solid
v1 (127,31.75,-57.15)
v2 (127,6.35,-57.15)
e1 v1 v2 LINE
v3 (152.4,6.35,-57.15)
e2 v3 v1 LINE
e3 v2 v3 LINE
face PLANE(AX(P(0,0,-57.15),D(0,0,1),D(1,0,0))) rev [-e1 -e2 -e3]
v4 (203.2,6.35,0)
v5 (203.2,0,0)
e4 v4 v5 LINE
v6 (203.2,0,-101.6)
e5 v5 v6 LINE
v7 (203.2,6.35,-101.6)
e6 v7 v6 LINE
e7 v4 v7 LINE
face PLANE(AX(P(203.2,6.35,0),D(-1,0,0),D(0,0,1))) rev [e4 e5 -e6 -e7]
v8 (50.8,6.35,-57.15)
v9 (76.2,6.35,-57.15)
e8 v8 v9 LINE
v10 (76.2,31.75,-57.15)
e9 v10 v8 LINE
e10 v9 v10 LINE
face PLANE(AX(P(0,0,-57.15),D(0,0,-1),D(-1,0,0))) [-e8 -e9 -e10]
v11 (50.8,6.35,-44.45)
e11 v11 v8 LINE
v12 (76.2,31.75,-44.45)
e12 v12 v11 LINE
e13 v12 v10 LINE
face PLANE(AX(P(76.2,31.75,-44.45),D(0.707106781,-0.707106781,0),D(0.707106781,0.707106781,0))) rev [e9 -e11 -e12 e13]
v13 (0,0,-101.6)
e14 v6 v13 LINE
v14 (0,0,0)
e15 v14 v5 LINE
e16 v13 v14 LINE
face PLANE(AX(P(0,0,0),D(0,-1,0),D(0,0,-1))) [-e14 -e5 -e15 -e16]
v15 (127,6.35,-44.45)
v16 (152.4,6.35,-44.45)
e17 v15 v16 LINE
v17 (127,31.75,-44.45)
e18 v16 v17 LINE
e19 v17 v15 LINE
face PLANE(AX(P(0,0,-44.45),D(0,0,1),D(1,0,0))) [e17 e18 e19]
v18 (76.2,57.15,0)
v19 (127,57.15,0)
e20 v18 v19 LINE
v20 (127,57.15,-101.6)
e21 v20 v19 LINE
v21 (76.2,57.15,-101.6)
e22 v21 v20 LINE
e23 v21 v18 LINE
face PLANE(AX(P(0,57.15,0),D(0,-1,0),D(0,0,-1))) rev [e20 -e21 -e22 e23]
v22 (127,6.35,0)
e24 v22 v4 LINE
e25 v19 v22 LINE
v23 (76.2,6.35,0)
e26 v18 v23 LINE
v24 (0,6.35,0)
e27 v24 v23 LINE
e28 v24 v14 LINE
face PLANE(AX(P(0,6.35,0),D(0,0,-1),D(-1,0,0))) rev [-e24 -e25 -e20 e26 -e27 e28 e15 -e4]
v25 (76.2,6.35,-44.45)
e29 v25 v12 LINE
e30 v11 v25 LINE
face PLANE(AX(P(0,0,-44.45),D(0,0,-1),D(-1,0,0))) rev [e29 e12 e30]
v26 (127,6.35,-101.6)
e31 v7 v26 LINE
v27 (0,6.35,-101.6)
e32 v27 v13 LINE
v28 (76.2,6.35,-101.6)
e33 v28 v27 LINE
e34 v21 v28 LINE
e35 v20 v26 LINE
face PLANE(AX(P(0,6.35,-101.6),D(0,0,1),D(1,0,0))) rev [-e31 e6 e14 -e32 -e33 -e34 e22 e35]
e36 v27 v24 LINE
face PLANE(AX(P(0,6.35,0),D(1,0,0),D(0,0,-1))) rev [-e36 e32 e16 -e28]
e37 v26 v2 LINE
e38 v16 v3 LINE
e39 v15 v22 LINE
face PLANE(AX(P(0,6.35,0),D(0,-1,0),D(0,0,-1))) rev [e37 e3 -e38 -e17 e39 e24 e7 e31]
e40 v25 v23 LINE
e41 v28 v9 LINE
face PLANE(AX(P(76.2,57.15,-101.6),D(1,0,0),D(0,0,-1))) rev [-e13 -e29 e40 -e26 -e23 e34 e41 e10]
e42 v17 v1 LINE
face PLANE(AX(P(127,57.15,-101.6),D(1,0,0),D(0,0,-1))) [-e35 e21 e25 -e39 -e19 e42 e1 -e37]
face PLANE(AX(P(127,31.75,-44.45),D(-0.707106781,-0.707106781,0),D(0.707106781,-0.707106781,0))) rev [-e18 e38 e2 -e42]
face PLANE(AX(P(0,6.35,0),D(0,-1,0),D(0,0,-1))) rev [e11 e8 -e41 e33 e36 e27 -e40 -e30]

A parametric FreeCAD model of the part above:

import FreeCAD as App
import Part
import Sketcher

V = App.Vector
Q = App.Units.Quantity

doc = App.newDocument("Part")
params = doc.addObject("Spreadsheet::Sheet", "Params")
for row, (alias, value) in enumerate([
    ("sketch1_width", "8 in"),
    ("sketch1_height", "4 in"),
    ("pad1_length", "0.25 in"),
    ("sketch2_width", "2 in"),
    ("sketch2_height", "4 in"),
    ("pad2_length", "2 in"),
    ("sketch3_width", "1 in"),
    ("pad3_length", "0.5 in"),
], start=1):
    params.set(f"A{row}", alias)
    params.set(f"B{row}", "=" + value)
    params.setAlias(f"B{row}", alias)

body = doc.addObject("PartDesign::Body", "Body")

sketch1 = body.newObject("Sketcher::SketchObject", "Sketch")
sketch1.AttachmentSupport = (doc.getObject("XZ_Plane"), [""])
sketch1.MapMode = "FlatFace"
sketch1.addGeometry(Part.LineSegment(V(0, -101.6, 0), V(0, 0, 0)), False)
sketch1.addGeometry(Part.LineSegment(V(0, 0, 0), V(203.2, 0, 0)), False)
sketch1.addGeometry(Part.LineSegment(V(203.2, 0, 0), V(203.2, -101.6, 0)), False)
sketch1.addGeometry(Part.LineSegment(V(203.2, -101.6, 0), V(0, -101.6, 0)), False)
sketch1.addConstraint(Sketcher.Constraint("Coincident", 0, 2, 1, 1))
sketch1.addConstraint(Sketcher.Constraint("Coincident", 1, 2, 2, 1))
sketch1.addConstraint(Sketcher.Constraint("Coincident", 2, 2, 3, 1))
sketch1.addConstraint(Sketcher.Constraint("Coincident", 3, 2, 0, 1))
sketch1.addConstraint(Sketcher.Constraint("Vertical", 0))
sketch1.addConstraint(Sketcher.Constraint("Horizontal", 1))
sketch1.addConstraint(Sketcher.Constraint("Vertical", 2))
sketch1.addConstraint(Sketcher.Constraint("Horizontal", 3))
sketch1.addConstraint(Sketcher.Constraint("Coincident", 0, 2, -1, 1))
sketch1.addConstraint(Sketcher.Constraint("DistanceX", 1, 1, 1, 2, Q("8 in")))
sketch1.addConstraint(Sketcher.Constraint("DistanceY", 0, 1, 0, 2, Q("4 in")))
sketch1.setExpression("Constraints[9]", "Params.sketch1_width")
sketch1.setExpression("Constraints[10]", "Params.sketch1_height")
pad1 = body.newObject("PartDesign::Pad", "Pad")
pad1.Profile = sketch1
pad1.setExpression("Length", "Params.pad1_length")
pad1.Reversed = True

sketch2 = body.newObject("Sketcher::SketchObject", "Sketch001")
sketch2.AttachmentSupport = (doc.getObject("XZ_Plane"), [""])
sketch2.MapMode = "FlatFace"
sketch2.AttachmentOffset = App.Placement(V(0, 0, -0.25 * 25.4), App.Rotation())
sketch2.addGeometry(Part.LineSegment(V(76.2, -101.6, 0), V(76.2, 0, 0)), False)
sketch2.addGeometry(Part.LineSegment(V(76.2, 0, 0), V(127, 0, 0)), False)
sketch2.addGeometry(Part.LineSegment(V(127, 0, 0), V(127, -101.6, 0)), False)
sketch2.addGeometry(Part.LineSegment(V(127, -101.6, 0), V(76.2, -101.6, 0)), False)
sketch2.addConstraint(Sketcher.Constraint("Coincident", 0, 2, 1, 1))
sketch2.addConstraint(Sketcher.Constraint("Coincident", 1, 2, 2, 1))
sketch2.addConstraint(Sketcher.Constraint("Coincident", 2, 2, 3, 1))
sketch2.addConstraint(Sketcher.Constraint("Coincident", 3, 2, 0, 1))
sketch2.addConstraint(Sketcher.Constraint("Vertical", 0))
sketch2.addConstraint(Sketcher.Constraint("Horizontal", 1))
sketch2.addConstraint(Sketcher.Constraint("Vertical", 2))
sketch2.addConstraint(Sketcher.Constraint("Horizontal", 3))
sketch2.addConstraint(Sketcher.Constraint("PointOnObject", 0, 2, -1))
sketch2.addConstraint(Sketcher.Constraint("DistanceX", 1, 1, 1, 2, Q("2 in")))
sketch2.addConstraint(Sketcher.Constraint("DistanceY", 0, 1, 0, 2, Q("4 in")))
sketch2.addConstraint(Sketcher.Constraint("DistanceX", -1, 1, 0, 2, Q("3 in")))
sketch2.setExpression("Constraints[9]", "Params.sketch2_width")
sketch2.setExpression("Constraints[10]", "Params.sketch2_height")
pad2 = body.newObject("PartDesign::Pad", "Pad001")
pad2.Profile = sketch2
pad2.setExpression("Length", "Params.pad2_length")
pad2.Reversed = True

sketch3 = body.newObject("Sketcher::SketchObject", "Sketch002")
sketch3.AttachmentSupport = (doc.getObject("XY_Plane"), [""])
sketch3.MapMode = "FlatFace"
sketch3.AttachmentOffset = App.Placement(V(0, 0, -2 * 25.4), App.Rotation())
sketch3.addGeometry(Part.LineSegment(V(152.4, 6.35, 0), V(127, 31.75, 0)), False)
sketch3.addGeometry(Part.LineSegment(V(127, 31.75, 0), V(127, 6.35, 0)), False)
sketch3.addGeometry(Part.LineSegment(V(127, 6.35, 0), V(152.4, 6.35, 0)), False)
sketch3.addGeometry(Part.LineSegment(V(76.2, 31.75, 0), V(50.8, 6.35, 0)), False)
sketch3.addGeometry(Part.LineSegment(V(50.8, 6.35, 0), V(76.2, 6.35, 0)), False)
sketch3.addGeometry(Part.LineSegment(V(76.2, 6.35, 0), V(76.2, 31.75, 0)), False)
sketch3.addConstraint(Sketcher.Constraint("Coincident", 0, 2, 1, 1))
sketch3.addConstraint(Sketcher.Constraint("Coincident", 1, 2, 2, 1))
sketch3.addConstraint(Sketcher.Constraint("Coincident", 2, 2, 0, 1))
sketch3.addConstraint(Sketcher.Constraint("Coincident", 3, 2, 4, 1))
sketch3.addConstraint(Sketcher.Constraint("Coincident", 4, 2, 5, 1))
sketch3.addConstraint(Sketcher.Constraint("Coincident", 5, 2, 3, 1))
sketch3.addConstraint(Sketcher.Constraint("Vertical", 1))
sketch3.addConstraint(Sketcher.Constraint("Horizontal", 2))
sketch3.addConstraint(Sketcher.Constraint("Horizontal", 4))
sketch3.addConstraint(Sketcher.Constraint("Vertical", 5))
sketch3.addConstraint(Sketcher.Constraint("Perpendicular", 0, 3))
sketch3.addConstraint(Sketcher.Constraint("Horizontal", 2, 2, 3, 2))
sketch3.addConstraint(Sketcher.Constraint("Horizontal", 0, 2, 5, 2))
sketch3.addConstraint(Sketcher.Constraint("Equal", 2, 4))
sketch3.addConstraint(Sketcher.Constraint("DistanceX", 2, 1, 2, 2, Q("1 in")))
sketch3.addConstraint(Sketcher.Constraint("DistanceX", -1, 1, 0, 2, Q("5 in")))
sketch3.addConstraint(Sketcher.Constraint("DistanceX", -1, 1, 3, 2, Q("2 in")))
sketch3.addConstraint(Sketcher.Constraint("DistanceY", -1, 1, 0, 2, Q("1.25 in")))
sketch3.setExpression("Constraints[14]", "Params.sketch3_width")
pad3 = body.newObject("PartDesign::Pad", "Pad002")
pad3.Profile = sketch3
pad3.setExpression("Length", "Params.pad3_length")
pad3.Midplane = True

doc.recompute()
